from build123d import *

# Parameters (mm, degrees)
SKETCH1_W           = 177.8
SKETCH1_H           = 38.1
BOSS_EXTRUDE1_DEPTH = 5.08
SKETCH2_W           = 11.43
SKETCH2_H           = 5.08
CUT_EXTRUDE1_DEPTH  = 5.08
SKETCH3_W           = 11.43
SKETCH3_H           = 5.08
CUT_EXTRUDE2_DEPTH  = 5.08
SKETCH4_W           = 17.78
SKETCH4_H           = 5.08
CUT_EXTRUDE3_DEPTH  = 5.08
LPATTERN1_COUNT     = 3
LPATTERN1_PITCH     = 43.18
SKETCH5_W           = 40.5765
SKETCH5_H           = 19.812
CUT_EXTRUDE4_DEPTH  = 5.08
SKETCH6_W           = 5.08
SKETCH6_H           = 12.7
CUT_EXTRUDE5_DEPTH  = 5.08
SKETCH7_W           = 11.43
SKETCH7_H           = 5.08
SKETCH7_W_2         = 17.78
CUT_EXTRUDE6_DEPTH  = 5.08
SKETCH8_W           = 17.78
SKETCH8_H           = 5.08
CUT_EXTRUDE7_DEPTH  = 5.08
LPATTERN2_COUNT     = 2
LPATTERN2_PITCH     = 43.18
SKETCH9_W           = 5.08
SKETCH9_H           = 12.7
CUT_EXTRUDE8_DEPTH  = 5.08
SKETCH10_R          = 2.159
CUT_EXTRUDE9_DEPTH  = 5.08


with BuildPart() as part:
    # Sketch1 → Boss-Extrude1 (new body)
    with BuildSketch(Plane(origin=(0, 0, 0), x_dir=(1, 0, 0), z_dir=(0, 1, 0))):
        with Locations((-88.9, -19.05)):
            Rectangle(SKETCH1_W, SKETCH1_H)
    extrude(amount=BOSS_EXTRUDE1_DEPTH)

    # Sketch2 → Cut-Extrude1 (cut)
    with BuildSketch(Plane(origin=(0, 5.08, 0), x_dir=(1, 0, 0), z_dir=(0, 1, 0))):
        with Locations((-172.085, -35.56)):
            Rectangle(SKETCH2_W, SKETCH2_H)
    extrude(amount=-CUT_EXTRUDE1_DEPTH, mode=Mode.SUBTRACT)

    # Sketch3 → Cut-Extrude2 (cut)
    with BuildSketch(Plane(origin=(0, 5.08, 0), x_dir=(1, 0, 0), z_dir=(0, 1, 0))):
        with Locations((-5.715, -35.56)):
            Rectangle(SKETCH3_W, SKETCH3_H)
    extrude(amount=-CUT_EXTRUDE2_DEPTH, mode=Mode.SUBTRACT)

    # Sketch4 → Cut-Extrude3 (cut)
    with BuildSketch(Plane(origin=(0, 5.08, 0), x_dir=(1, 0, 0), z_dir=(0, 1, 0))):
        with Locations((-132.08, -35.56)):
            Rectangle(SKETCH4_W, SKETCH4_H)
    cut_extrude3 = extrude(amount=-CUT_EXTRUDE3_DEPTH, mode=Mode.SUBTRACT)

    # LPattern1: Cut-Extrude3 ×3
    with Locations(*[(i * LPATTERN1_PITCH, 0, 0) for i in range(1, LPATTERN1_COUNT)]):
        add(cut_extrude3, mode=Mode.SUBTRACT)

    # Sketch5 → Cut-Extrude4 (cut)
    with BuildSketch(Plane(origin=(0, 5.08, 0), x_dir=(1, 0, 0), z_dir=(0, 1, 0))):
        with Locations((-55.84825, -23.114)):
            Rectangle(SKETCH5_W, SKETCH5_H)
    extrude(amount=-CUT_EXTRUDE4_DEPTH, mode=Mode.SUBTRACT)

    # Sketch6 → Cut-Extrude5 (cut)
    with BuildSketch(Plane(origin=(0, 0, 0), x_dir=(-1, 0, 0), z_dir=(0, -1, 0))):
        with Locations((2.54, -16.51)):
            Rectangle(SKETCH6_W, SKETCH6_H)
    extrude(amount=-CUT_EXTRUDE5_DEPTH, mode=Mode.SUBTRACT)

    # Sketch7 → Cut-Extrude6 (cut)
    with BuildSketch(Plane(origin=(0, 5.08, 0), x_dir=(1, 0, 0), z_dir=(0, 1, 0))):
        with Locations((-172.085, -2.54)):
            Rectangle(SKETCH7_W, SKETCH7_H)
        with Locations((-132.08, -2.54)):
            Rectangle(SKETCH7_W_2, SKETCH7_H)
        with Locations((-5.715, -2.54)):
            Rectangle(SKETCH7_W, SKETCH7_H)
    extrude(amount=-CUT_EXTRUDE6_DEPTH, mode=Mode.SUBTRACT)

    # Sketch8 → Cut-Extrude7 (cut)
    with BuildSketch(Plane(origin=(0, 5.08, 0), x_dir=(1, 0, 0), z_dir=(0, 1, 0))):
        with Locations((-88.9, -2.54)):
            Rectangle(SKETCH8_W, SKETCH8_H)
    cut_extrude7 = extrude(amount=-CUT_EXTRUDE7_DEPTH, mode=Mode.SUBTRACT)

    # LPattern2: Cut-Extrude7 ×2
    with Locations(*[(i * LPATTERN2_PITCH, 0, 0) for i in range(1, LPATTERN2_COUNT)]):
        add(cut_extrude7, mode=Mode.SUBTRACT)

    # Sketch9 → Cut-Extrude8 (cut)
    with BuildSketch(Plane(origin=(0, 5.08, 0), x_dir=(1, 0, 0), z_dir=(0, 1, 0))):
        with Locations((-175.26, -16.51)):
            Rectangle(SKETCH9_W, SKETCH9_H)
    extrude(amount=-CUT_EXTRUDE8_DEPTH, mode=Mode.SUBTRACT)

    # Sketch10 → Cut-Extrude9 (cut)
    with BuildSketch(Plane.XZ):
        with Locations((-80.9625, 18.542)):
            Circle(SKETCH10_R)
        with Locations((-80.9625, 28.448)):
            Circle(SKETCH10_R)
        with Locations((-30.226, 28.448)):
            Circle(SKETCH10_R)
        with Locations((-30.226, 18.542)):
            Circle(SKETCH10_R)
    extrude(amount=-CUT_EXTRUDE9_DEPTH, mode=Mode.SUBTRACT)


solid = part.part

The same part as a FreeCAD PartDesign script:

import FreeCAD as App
import Part
import Sketcher
from FreeCAD import Vector
Q = App.Units.Quantity


def add_polygon(sketch, points):
    """Adds a closed chain of lines whose ends are joined by coincident constraints."""
    first, n = sketch.GeometryCount, len(points)
    for a, b in zip(points, points[1:] + points[:1]):
        sketch.addGeometry(Part.LineSegment(App.Vector(*a, 0), App.Vector(*b, 0)), False)
    for i in range(n):
        sketch.addConstraint(Sketcher.Constraint("Coincident", first + i, 2, first + (i + 1) % n, 1))

doc = App.newDocument("Part")
body = doc.addObject("PartDesign::Body", "Body")

# Sketch on XZ plane
sketch1 = body.newObject("Sketcher::SketchObject", "Sketch")
sketch1.AttachmentSupport = (doc.getObject("XZ_Plane"), [""])
sketch1.MapMode = "FlatFace"
add_polygon(sketch1, [(-177.8, 0), (-177.8, 38.1), (0, 38.1), (0, 0)])  # lines 0-3
sketch1.addConstraint([
    Sketcher.Constraint("Vertical", 0),
    Sketcher.Constraint("Horizontal", 1),
    Sketcher.Constraint("Vertical", 2),
    Sketcher.Constraint("Horizontal", 3),
    Sketcher.Constraint("Coincident", 2, 2, -1, 1),
    Sketcher.Constraint("DistanceX", 1, 1, 1, 2, Q("7 in")),
    Sketcher.Constraint("DistanceY", 0, 1, 0, 2, Q("1.5 in")),
])
pad1 = body.newObject("PartDesign::Pad", "Pad")
pad1.Profile = sketch1
pad1.Length = Q("0.2 in")
pad1.Reversed = True

# Sketch on XZ plane
sketch2 = body.newObject("Sketcher::SketchObject", "Sketch001")
sketch2.AttachmentSupport = (doc.getObject("XZ_Plane"), [""])
sketch2.MapMode = "FlatFace"
sketch2.AttachmentOffset = App.Placement(Vector(0, 0, -0.2 * 25.4), App.Rotation())
add_polygon(sketch2, [(-177.8, 33.02), (-177.8, 38.1), (-166.37, 38.1), (-166.37, 33.02)])  # lines 0-3
sketch2.addConstraint([
    Sketcher.Constraint("Vertical", 0),
    Sketcher.Constraint("Horizontal", 1),
    Sketcher.Constraint("Vertical", 2),
    Sketcher.Constraint("Horizontal", 3),
    Sketcher.Constraint("DistanceY", 0, 1, 0, 2, Q("0.2 in")),
    Sketcher.Constraint("DistanceX", 0, 2, -1, 1, Q("7 in")),
    Sketcher.Constraint("DistanceX", 1, 1, 1, 2, Q("0.45 in")),
    Sketcher.Constraint("DistanceY", -1, 1, 0, 2, Q("1.5 in")),
])
pocket1 = body.newObject("PartDesign::Pocket", "Pocket")
pocket1.Profile = sketch2
pocket1.Length = Q("0.2 in")
pocket1.Reversed = True

# Sketch on XZ plane
sketch3 = body.newObject("Sketcher::SketchObject", "Sketch002")
sketch3.AttachmentSupport = (doc.getObject("XZ_Plane"), [""])
sketch3.MapMode = "FlatFace"
sketch3.AttachmentOffset = App.Placement(Vector(0, 0, -0.2 * 25.4), App.Rotation())
add_polygon(sketch3, [(-11.43, 33.02), (-11.43, 38.1), (0, 38.1), (0, 33.02)])  # lines 0-3
sketch3.addConstraint([
    Sketcher.Constraint("Vertical", 0),
    Sketcher.Constraint("Horizontal", 1),
    Sketcher.Constraint("Vertical", 2),
    Sketcher.Constraint("Horizontal", 3),
    Sketcher.Constraint("PointOnObject", 1, 2, -2),
    Sketcher.Constraint("DistanceY", 0, 1, 0, 2, Q("0.2 in")),
    Sketcher.Constraint("DistanceX", 1, 1, 1, 2, Q("0.45 in")),
    Sketcher.Constraint("DistanceY", -1, 1, 0, 2, Q("1.5 in")),
])
pocket2 = body.newObject("PartDesign::Pocket", "Pocket001")
pocket2.Profile = sketch3
pocket2.Length = Q("0.2 in")
pocket2.Reversed = True

# Sketch on XZ plane
sketch4 = body.newObject("Sketcher::SketchObject", "Sketch003")
sketch4.AttachmentSupport = (doc.getObject("XZ_Plane"), [""])
sketch4.MapMode = "FlatFace"
sketch4.AttachmentOffset = App.Placement(Vector(0, 0, -0.2 * 25.4), App.Rotation())
add_polygon(sketch4, [(-140.97, 33.02), (-140.97, 38.1), (-123.19, 38.1), (-123.19, 33.02)])  # lines 0-3
sketch4.addConstraint([
    Sketcher.Constraint("Vertical", 0),
    Sketcher.Constraint("Horizontal", 1),
    Sketcher.Constraint("Vertical", 2),
    Sketcher.Constraint("Horizontal", 3),
    Sketcher.Constraint("DistanceX", 1, 1, 1, 2, Q("0.7 in")),
    Sketcher.Constraint("DistanceY", 0, 1, 0, 2, Q("0.2 in")),
    Sketcher.Constraint("DistanceY", -1, 1, 0, 2, Q("1.5 in")),
    Sketcher.Constraint("DistanceX", 0, 2, -1, 1, Q("5.55 in")),
])
pocket3 = body.newObject("PartDesign::Pocket", "Pocket002")
pocket3.Profile = sketch4
pocket3.Length = Q("0.2 in")
pocket3.Reversed = True
doc.recompute()

linearpattern = body.newObject("PartDesign::LinearPattern", "LinearPattern")
linearpattern.Originals = [pocket3]
linearpattern.Direction = (doc.getObject("X_Axis"), [""])
linearpattern.Mode = "offset"
linearpattern.Offset = Q("1.7 in")
linearpattern.Occurrences = 3
body.Tip = linearpattern

# Sketch on XZ plane
sketch5 = body.newObject("Sketcher::SketchObject", "Sketch004")
sketch5.AttachmentSupport = (doc.getObject("XZ_Plane"), [""])
sketch5.MapMode = "FlatFace"
sketch5.AttachmentOffset = App.Placement(Vector(0, 0, -0.2 * 25.4), App.Rotation())
add_polygon(sketch5, [(-76.1365, 13.208), (-76.1365, 33.02), (-35.56, 33.02), (-35.56, 13.208)])  # lines 0-3
sketch5.addConstraint([
    Sketcher.Constraint("Vertical", 0),
    Sketcher.Constraint("Horizontal", 1),
    Sketcher.Constraint("Vertical", 2),
    Sketcher.Constraint("Horizontal", 3),
    Sketcher.Constraint("DistanceY", 0, 1, 0, 2, Q("0.78 in")),
    Sketcher.Constraint("DistanceY", -1, 1, 0, 2, Q("1.3 in")),
    Sketcher.Constraint("DistanceX", 1, 2, -1, 1, Q("1.4 in")),
    Sketcher.Constraint("DistanceX", 1, 1, 1, 2, Q("1.5975 in")),
])
pocket4 = body.newObject("PartDesign::Pocket", "Pocket003")
pocket4.Profile = sketch5
pocket4.Length = Q("0.2 in")
pocket4.Reversed = True

# Sketch on XZ plane
sketch6 = body.newObject("Sketcher::SketchObject", "Sketch005")
sketch6.AttachmentSupport = (doc.getObject("XZ_Plane"), [""])
sketch6.MapMode = "FlatFace"
add_polygon(sketch6, [(0, 10.16), (0, 22.86), (-5.08, 22.86), (-5.08, 10.16)])  # lines 0-3
sketch6.addConstraint([
    Sketcher.Constraint("Vertical", 0),
    Sketcher.Constraint("Horizontal", 1),
    Sketcher.Constraint("Vertical", 2),
    Sketcher.Constraint("Horizontal", 3),
    Sketcher.Constraint("PointOnObject", 0, 2, -2),
    Sketcher.Constraint("DistanceX", 1, 2, 1, 1, Q("0.2 in")),
    Sketcher.Constraint("DistanceY", 0, 1, 0, 2, Q("0.5 in")),
    Sketcher.Constraint("DistanceY", -1, 1, 0, 2, Q("0.9 in")),
])
pocket5 = body.newObject("PartDesign::Pocket", "Pocket004")
pocket5.Profile = sketch6
pocket5.Length = Q("0.2 in")

# Sketch on XZ plane
sketch7 = body.newObject("Sketcher::SketchObject", "Sketch006")
sketch7.AttachmentSupport = (doc.getObject("XZ_Plane"), [""])
sketch7.MapMode = "FlatFace"
sketch7.AttachmentOffset = App.Placement(Vector(0, 0, -0.2 * 25.4), App.Rotation())
add_polygon(sketch7, [(-177.8, 0), (-177.8, 5.08), (-166.37, 5.08), (-166.37, 0)])  # lines 0-3
add_polygon(sketch7, [(-140.97, 0), (-140.97, 5.08), (-123.19, 5.08), (-123.19, 0)])  # lines 4-7
add_polygon(sketch7, [(-11.43, 0), (-11.43, 5.08), (0, 5.08), (0, 0)])  # lines 8-11
sketch7.addConstraint([
    Sketcher.Constraint("Vertical", 0),
    Sketcher.Constraint("Horizontal", 1),
    Sketcher.Constraint("Vertical", 2),
    Sketcher.Constraint("Horizontal", 3),
    Sketcher.Constraint("Vertical", 4),
    Sketcher.Constraint("Horizontal", 5),
    Sketcher.Constraint("Vertical", 6),
    Sketcher.Constraint("Horizontal", 7),
    Sketcher.Constraint("Vertical", 8),
    Sketcher.Constraint("Horizontal", 9),
    Sketcher.Constraint("Vertical", 10),
    Sketcher.Constraint("Horizontal", 11),
    Sketcher.Constraint("Coincident", 10, 2, -1, 1),
    Sketcher.Constraint("PointOnObject", 2, 2, -1),
    Sketcher.Constraint("PointOnObject", 6, 2, -1),
    Sketcher.Constraint("Horizontal", 1, 2, 4, 2),
    Sketcher.Constraint("Horizontal", 5, 2, 8, 2),
    Sketcher.Constraint("Equal", 3, 9),
    Sketcher.Constraint("DistanceX", 5, 1, 5, 2, Q("0.7 in")),
    Sketcher.Constraint("DistanceY", 0, 1, 0, 2, Q("0.2 in")),
    Sketcher.Constraint("DistanceX", 0, 2, -1, 1, Q("7 in")),
    Sketcher.Constraint("DistanceX", 1, 2, 4, 2, Q("1 in")),
    Sketcher.Constraint("DistanceX", 1, 1, 1, 2, Q("0.45 in")),
])
pocket6 = body.newObject("PartDesign::Pocket", "Pocket005")
pocket6.Profile = sketch7
pocket6.Length = Q("0.2 in")
pocket6.Reversed = True

# Sketch on XZ plane
sketch8 = body.newObject("Sketcher::SketchObject", "Sketch007")
sketch8.AttachmentSupport = (doc.getObject("XZ_Plane"), [""])
sketch8.MapMode = "FlatFace"
sketch8.AttachmentOffset = App.Placement(Vector(0, 0, -0.2 * 25.4), App.Rotation())
add_polygon(sketch8, [(-97.79, 0), (-97.79, 5.08), (-80.01, 5.08), (-80.01, 0)])  # lines 0-3
sketch8.addConstraint([
    Sketcher.Constraint("Vertical", 0),
    Sketcher.Constraint("Horizontal", 1),
    Sketcher.Constraint("Vertical", 2),
    Sketcher.Constraint("Horizontal", 3),
    Sketcher.Constraint("PointOnObject", 2, 2, -1),
    Sketcher.Constraint("DistanceX", 1, 1, 1, 2, Q("0.7 in")),
    Sketcher.Constraint("DistanceY", 0, 1, 0, 2, Q("0.2 in")),
    Sketcher.Constraint("DistanceX", 0, 2, -1, 1, Q("3.85 in")),
])
pocket7 = body.newObject("PartDesign::Pocket", "Pocket006")
pocket7.Profile = sketch8
pocket7.Length = Q("0.2 in")
pocket7.Reversed = True
doc.recompute()

linearpattern2 = body.newObject("PartDesign::LinearPattern", "LinearPattern001")
linearpattern2.Originals = [pocket7]
linearpattern2.Direction = (doc.getObject("X_Axis"), [""])
linearpattern2.Mode = "offset"
linearpattern2.Offset = Q("1.7 in")
linearpattern2.Occurrences = 2
body.Tip = linearpattern2

# Sketch on XZ plane
sketch9 = body.newObject("Sketcher::SketchObject", "Sketch008")
sketch9.AttachmentSupport = (doc.getObject("XZ_Plane"), [""])
sketch9.MapMode = "FlatFace"
sketch9.AttachmentOffset = App.Placement(Vector(0, 0, -0.2 * 25.4), App.Rotation())
add_polygon(sketch9, [(-177.8, 10.16), (-177.8, 22.86), (-172.72, 22.86), (-172.72, 10.16)])  # lines 0-3
sketch9.addConstraint([
    Sketcher.Constraint("Vertical", 0),
    Sketcher.Constraint("Horizontal", 1),
    Sketcher.Constraint("Vertical", 2),
    Sketcher.Constraint("Horizontal", 3),
    Sketcher.Constraint("DistanceX", 1, 1, 1, 2, Q("0.2 in")),
    Sketcher.Constraint("DistanceY", 0, 1, 0, 2, Q("0.5 in")),
    Sketcher.Constraint("DistanceX", 0, 2, -1, 1, Q("7 in")),
    Sketcher.Constraint("DistanceY", -1, 1, 0, 2, Q("0.9 in")),
])
pocket8 = body.newObject("PartDesign::Pocket", "Pocket007")
pocket8.Profile = sketch9
pocket8.Length = Q("0.2 in")
pocket8.Reversed = True

# Sketch on XZ plane
sketch10 = body.newObject("Sketcher::SketchObject", "Sketch009")
sketch10.AttachmentSupport = (doc.getObject("XZ_Plane"), [""])
sketch10.MapMode = "FlatFace"
sketch10.addGeometry([
    Part.Circle(Vector(-80.9625, 18.542, 0), Vector(0, 0, 1), 2.159),
    Part.Circle(Vector(-80.9625, 28.448, 0), Vector(0, 0, 1), 2.159),
    Part.Circle(Vector(-30.226, 28.448, 0), Vector(0, 0, 1), 2.159),
    Part.Circle(Vector(-30.226, 18.542, 0), Vector(0, 0, 1), 2.159),
], False)
sketch10.addConstraint([
    Sketcher.Constraint("Equal", 0, 1),
    Sketcher.Constraint("Equal", 1, 2),
    Sketcher.Constraint("Equal", 2, 3),
    Sketcher.Constraint("Horizontal", 1, 3, 2, 3),
    Sketcher.Constraint("Horizontal", 0, 3, 3, 3),
    Sketcher.Constraint("Vertical", 0, 3, 1, 3),
    Sketcher.Constraint("Vertical", 2, 3, 3, 3),
    Sketcher.Constraint("Diameter", 0, Q("0.17 in")),
    Sketcher.Constraint("DistanceY", -1, 1, 0, 3, Q("0.73 in")),
    Sketcher.Constraint("DistanceY", -1, 1, 1, 3, Q("1.12 in")),
    Sketcher.Constraint("DistanceX", 2, 3, -1, 1, Q("1.19 in")),
    Sketcher.Constraint("DistanceX", 0, 3, -1, 1, Q("3.1875 in")),
])
pocket9 = body.newObject("PartDesign::Pocket", "Pocket008")
pocket9.Profile = sketch10
pocket9.Length = Q("0.2 in")

doc.recompute()
